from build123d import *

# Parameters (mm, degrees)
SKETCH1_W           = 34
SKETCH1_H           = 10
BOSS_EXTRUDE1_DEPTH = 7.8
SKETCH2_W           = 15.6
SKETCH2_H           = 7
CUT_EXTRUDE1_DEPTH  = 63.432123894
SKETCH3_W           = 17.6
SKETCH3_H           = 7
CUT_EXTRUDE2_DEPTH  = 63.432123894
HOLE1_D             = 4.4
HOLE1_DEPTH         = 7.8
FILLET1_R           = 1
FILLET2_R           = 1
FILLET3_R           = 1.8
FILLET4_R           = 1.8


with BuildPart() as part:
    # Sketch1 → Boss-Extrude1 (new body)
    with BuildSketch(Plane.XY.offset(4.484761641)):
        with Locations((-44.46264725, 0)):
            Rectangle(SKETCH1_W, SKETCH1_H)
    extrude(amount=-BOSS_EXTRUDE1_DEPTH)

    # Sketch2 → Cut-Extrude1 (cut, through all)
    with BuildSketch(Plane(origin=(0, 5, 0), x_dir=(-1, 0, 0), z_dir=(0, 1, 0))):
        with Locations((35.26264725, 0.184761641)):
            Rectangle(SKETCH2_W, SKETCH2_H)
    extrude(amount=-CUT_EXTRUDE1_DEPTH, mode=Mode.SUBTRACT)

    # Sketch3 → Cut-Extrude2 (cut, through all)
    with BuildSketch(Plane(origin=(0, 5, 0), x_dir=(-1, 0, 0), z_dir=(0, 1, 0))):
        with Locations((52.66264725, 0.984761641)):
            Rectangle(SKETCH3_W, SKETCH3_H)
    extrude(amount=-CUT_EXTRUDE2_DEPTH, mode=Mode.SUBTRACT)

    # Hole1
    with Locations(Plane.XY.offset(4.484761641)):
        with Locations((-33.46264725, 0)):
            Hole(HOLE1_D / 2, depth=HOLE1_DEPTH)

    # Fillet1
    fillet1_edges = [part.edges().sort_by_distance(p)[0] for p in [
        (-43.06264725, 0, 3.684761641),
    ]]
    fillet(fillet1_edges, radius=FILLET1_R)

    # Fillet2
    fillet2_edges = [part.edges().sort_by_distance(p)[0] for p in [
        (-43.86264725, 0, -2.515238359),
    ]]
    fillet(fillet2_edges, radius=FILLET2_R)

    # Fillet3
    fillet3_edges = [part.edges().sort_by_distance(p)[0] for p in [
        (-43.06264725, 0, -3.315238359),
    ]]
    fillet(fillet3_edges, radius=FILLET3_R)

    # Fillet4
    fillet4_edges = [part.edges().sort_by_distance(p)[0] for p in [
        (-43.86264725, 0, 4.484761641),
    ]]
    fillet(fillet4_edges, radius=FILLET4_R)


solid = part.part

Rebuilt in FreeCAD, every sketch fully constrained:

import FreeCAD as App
import Part
import Sketcher


def edges_at(feature, points):
    """Names of the edges that pass closest to the given points."""
    edges = feature.Shape.Edges
    near = lambda p: min(range(len(edges)), key=lambda i: edges[i].distToShape(Part.Vertex(*p))[0])
    return sorted({f"Edge{near(p) + 1}" for p in points})


def add_polygon(sketch, points):
    """Adds a closed chain of lines whose ends are joined by coincident constraints."""
    first, n = sketch.GeometryCount, len(points)
    for a, b in zip(points, points[1:] + points[:1]):
        sketch.addGeometry(Part.LineSegment(App.Vector(*a, 0), App.Vector(*b, 0)), False)
    for i in range(n):
        sketch.addConstraint(Sketcher.Constraint("Coincident", first + i, 2, first + (i + 1) % n, 1))

doc = App.newDocument("Part")
body = doc.addObject("PartDesign::Body", "Body")

# Sketch on XY plane
sketch1 = body.newObject("Sketcher::SketchObject", "Sketch")
sketch1.AttachmentSupport = (doc.getObject("XY_Plane"), [""])
sketch1.MapMode = "FlatFace"
sketch1.AttachmentOffset = App.Placement(App.Vector(0, 0, 4.484762), App.Rotation())
add_polygon(sketch1, [(-61, 5), (-61, -5), (-27, -5), (-27, 5)])  # lines 0-3
sketch1.addConstraint(Sketcher.Constraint("Vertical", 0))
sketch1.addConstraint(Sketcher.Constraint("Horizontal", 1))
sketch1.addConstraint(Sketcher.Constraint("Vertical", 2))
sketch1.addConstraint(Sketcher.Constraint("Horizontal", 3))
sketch1.addConstraint(Sketcher.Constraint("DistanceX", 1, 1, 1, 2, 34.0))
sketch1.addConstraint(Sketcher.Constraint("DistanceY", 0, 2, 0, 1, 10.0))
sketch1.addConstraint(Sketcher.Constraint("DistanceY", 0, 2, -1, 1, 5.0))
sketch1.addConstraint(Sketcher.Constraint("DistanceX", 0, 2, -1, 1, 61.462647))
pad1 = body.newObject("PartDesign::Pad", "Pad")
pad1.Profile = sketch1
pad1.Length = 7.8
pad1.Reversed = True

# Sketch on XZ plane
sketch2 = body.newObject("Sketcher::SketchObject", "Sketch001")
sketch2.AttachmentSupport = (doc.getObject("XZ_Plane"), [""])
sketch2.MapMode = "FlatFace"
sketch2.AttachmentOffset = App.Placement(App.Vector(0, 0, -5), App.Rotation())
add_polygon(sketch2, [(-27, 4), (-27, -3), (-43, -3), (-43, 4)])  # lines 0-3
sketch2.addConstraint(Sketcher.Constraint("Vertical", 0))
sketch2.addConstraint(Sketcher.Constraint("Horizontal", 1))
sketch2.addConstraint(Sketcher.Constraint("Vertical", 2))
sketch2.addConstraint(Sketcher.Constraint("Horizontal", 3))
sketch2.addConstraint(Sketcher.Constraint("DistanceY", 0, 2, 0, 1, 7.0))
sketch2.addConstraint(Sketcher.Constraint("DistanceX", 1, 2, 1, 1, 15.6))
sketch2.addConstraint(Sketcher.Constraint("DistanceY", 0, 2, -1, 1, 3.315238))
sketch2.addConstraint(Sketcher.Constraint("DistanceX", 0, 2, -1, 1, 27.462647))
pocket1 = body.newObject("PartDesign::Pocket", "Pocket")
pocket1.Profile = sketch2
pocket1.Type = "ThroughAll"
pocket1.Reversed = True

# Sketch on XZ plane
sketch3 = body.newObject("Sketcher::SketchObject", "Sketch002")
sketch3.AttachmentSupport = (doc.getObject("XZ_Plane"), [""])
sketch3.MapMode = "FlatFace"
sketch3.AttachmentOffset = App.Placement(App.Vector(0, 0, -5), App.Rotation())
add_polygon(sketch3, [(-44, 4), (-44, -3), (-61, -3), (-61, 4)])  # lines 0-3
sketch3.addConstraint(Sketcher.Constraint("Vertical", 0))
sketch3.addConstraint(Sketcher.Constraint("Horizontal", 1))
sketch3.addConstraint(Sketcher.Constraint("Vertical", 2))
sketch3.addConstraint(Sketcher.Constraint("Horizontal", 3))
sketch3.addConstraint(Sketcher.Constraint("DistanceY", 0, 2, 0, 1, 7.0))
sketch3.addConstraint(Sketcher.Constraint("DistanceX", 1, 2, 1, 1, 17.6))
sketch3.addConstraint(Sketcher.Constraint("DistanceY", 0, 2, -1, 1, 2.515238))
sketch3.addConstraint(Sketcher.Constraint("DistanceX", 0, 2, -1, 1, 43.862647))
pocket2 = body.newObject("PartDesign::Pocket", "Pocket001")
pocket2.Profile = sketch3
pocket2.Type = "ThroughAll"
pocket2.Reversed = True

# Sketch on XY plane
sketch4 = body.newObject("Sketcher::SketchObject", "Sketch003")
sketch4.AttachmentSupport = (doc.getObject("XY_Plane"), [""])
sketch4.MapMode = "FlatFace"
sketch4.AttachmentOffset = App.Placement(App.Vector(0, 0, 4.484762), App.Rotation())
sketch4.addGeometry(Part.Circle(App.Vector(-33.5, 0, 0), App.Vector(0, 0, 1), 2.2), False)
sketch4.addConstraint(Sketcher.Constraint("PointOnObject", 0, 3, -1))
sketch4.addConstraint(Sketcher.Constraint("Diameter", 0, 4.4))
sketch4.addConstraint(Sketcher.Constraint("DistanceX", 0, 3, -1, 1, 33.462647))
doc.recompute()
hole = body.newObject("PartDesign::Hole", "Hole")
hole.Profile = sketch4
hole.ThreadType = "None"
hole.Diameter = 4.4
hole.DepthType = "Dimension"
hole.Depth = 7.8
hole.DrillPoint = "Flat"
doc.recompute()

fillet = body.newObject("PartDesign::Fillet", "Fillet")
fillet.Base = (hole, edges_at(hole, [(-43.063, 0, 3.685)]))
fillet.Radius = 1
doc.recompute()

fillet2 = body.newObject("PartDesign::Fillet", "Fillet001")
fillet2.Base = (fillet, edges_at(fillet, [(-43.863, 0, -2.515)]))
fillet2.Radius = 1
doc.recompute()

fillet3 = body.newObject("PartDesign::Fillet", "Fillet002")
fillet3.Base = (fillet2, edges_at(fillet2, [(-43.063, 0, -3.315)]))
fillet3.Radius = 1.8
doc.recompute()

fillet4 = body.newObject("PartDesign::Fillet", "Fillet003")
fillet4.Base = (fillet3, edges_at(fillet3, [(-43.863, 0, 4.485)]))
fillet4.Radius = 1.8

doc.recompute()
